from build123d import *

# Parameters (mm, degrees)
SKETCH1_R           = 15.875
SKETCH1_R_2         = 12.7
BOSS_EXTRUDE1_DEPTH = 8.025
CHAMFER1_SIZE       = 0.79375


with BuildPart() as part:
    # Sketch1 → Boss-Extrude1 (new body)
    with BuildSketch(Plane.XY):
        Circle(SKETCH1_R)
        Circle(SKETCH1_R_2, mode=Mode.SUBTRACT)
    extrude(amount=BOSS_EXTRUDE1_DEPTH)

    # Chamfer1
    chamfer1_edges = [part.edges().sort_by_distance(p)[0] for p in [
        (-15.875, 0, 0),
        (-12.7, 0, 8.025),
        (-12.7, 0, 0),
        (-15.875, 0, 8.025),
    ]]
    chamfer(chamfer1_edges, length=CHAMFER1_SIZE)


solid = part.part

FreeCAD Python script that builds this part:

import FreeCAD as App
import Part
import Sketcher
Q = App.Units.Quantity


def edges_at(feature, points):
    """Names of the edges that pass closest to the given points."""
    edges = feature.Shape.Edges
    near = lambda p: min(range(len(edges)), key=lambda i: edges[i].distToShape(Part.Vertex(*p))[0])
    return sorted({f"Edge{near(p) + 1}" for p in points})

doc = App.newDocument("Part")
body = doc.addObject("PartDesign::Body", "Body")

sketch1 = body.newObject("Sketcher::SketchObject", "Sketch")
sketch1.AttachmentSupport = (doc.getObject("XY_Plane"), [""])
sketch1.MapMode = "FlatFace"
sketch1.addGeometry([
    Part.Circle(App.Vector(0, 0, 0), App.Vector(0, 0, 1), 16),
    Part.Circle(App.Vector(0, 0, 0), App.Vector(0, 0, 1), 13),
], False)
sketch1.addConstraint([
    Sketcher.Constraint("Coincident", 0, 3, -1, 1),
    Sketcher.Constraint("Coincident", 1, 3, -1, 1),
    Sketcher.Constraint("Diameter", 1, Q("1 in")),
    Sketcher.Constraint("Diameter", 0, Q("1.25 in")),
])
pad1 = body.newObject("PartDesign::Pad", "Pad")
pad1.Profile = sketch1
pad1.Length = 8.025
doc.recompute()

chamfer = body.newObject("PartDesign::Chamfer", "Chamfer")
chamfer.Base = (pad1, edges_at(pad1, [
    (-15.875, 0, 0),
    (-12.7, 0, 8.025),
    (-12.7, 0, 0),
    (-15.875, 0, 8.025),
]))
chamfer.Size = Q("0.03125 in")

doc.recompute()
